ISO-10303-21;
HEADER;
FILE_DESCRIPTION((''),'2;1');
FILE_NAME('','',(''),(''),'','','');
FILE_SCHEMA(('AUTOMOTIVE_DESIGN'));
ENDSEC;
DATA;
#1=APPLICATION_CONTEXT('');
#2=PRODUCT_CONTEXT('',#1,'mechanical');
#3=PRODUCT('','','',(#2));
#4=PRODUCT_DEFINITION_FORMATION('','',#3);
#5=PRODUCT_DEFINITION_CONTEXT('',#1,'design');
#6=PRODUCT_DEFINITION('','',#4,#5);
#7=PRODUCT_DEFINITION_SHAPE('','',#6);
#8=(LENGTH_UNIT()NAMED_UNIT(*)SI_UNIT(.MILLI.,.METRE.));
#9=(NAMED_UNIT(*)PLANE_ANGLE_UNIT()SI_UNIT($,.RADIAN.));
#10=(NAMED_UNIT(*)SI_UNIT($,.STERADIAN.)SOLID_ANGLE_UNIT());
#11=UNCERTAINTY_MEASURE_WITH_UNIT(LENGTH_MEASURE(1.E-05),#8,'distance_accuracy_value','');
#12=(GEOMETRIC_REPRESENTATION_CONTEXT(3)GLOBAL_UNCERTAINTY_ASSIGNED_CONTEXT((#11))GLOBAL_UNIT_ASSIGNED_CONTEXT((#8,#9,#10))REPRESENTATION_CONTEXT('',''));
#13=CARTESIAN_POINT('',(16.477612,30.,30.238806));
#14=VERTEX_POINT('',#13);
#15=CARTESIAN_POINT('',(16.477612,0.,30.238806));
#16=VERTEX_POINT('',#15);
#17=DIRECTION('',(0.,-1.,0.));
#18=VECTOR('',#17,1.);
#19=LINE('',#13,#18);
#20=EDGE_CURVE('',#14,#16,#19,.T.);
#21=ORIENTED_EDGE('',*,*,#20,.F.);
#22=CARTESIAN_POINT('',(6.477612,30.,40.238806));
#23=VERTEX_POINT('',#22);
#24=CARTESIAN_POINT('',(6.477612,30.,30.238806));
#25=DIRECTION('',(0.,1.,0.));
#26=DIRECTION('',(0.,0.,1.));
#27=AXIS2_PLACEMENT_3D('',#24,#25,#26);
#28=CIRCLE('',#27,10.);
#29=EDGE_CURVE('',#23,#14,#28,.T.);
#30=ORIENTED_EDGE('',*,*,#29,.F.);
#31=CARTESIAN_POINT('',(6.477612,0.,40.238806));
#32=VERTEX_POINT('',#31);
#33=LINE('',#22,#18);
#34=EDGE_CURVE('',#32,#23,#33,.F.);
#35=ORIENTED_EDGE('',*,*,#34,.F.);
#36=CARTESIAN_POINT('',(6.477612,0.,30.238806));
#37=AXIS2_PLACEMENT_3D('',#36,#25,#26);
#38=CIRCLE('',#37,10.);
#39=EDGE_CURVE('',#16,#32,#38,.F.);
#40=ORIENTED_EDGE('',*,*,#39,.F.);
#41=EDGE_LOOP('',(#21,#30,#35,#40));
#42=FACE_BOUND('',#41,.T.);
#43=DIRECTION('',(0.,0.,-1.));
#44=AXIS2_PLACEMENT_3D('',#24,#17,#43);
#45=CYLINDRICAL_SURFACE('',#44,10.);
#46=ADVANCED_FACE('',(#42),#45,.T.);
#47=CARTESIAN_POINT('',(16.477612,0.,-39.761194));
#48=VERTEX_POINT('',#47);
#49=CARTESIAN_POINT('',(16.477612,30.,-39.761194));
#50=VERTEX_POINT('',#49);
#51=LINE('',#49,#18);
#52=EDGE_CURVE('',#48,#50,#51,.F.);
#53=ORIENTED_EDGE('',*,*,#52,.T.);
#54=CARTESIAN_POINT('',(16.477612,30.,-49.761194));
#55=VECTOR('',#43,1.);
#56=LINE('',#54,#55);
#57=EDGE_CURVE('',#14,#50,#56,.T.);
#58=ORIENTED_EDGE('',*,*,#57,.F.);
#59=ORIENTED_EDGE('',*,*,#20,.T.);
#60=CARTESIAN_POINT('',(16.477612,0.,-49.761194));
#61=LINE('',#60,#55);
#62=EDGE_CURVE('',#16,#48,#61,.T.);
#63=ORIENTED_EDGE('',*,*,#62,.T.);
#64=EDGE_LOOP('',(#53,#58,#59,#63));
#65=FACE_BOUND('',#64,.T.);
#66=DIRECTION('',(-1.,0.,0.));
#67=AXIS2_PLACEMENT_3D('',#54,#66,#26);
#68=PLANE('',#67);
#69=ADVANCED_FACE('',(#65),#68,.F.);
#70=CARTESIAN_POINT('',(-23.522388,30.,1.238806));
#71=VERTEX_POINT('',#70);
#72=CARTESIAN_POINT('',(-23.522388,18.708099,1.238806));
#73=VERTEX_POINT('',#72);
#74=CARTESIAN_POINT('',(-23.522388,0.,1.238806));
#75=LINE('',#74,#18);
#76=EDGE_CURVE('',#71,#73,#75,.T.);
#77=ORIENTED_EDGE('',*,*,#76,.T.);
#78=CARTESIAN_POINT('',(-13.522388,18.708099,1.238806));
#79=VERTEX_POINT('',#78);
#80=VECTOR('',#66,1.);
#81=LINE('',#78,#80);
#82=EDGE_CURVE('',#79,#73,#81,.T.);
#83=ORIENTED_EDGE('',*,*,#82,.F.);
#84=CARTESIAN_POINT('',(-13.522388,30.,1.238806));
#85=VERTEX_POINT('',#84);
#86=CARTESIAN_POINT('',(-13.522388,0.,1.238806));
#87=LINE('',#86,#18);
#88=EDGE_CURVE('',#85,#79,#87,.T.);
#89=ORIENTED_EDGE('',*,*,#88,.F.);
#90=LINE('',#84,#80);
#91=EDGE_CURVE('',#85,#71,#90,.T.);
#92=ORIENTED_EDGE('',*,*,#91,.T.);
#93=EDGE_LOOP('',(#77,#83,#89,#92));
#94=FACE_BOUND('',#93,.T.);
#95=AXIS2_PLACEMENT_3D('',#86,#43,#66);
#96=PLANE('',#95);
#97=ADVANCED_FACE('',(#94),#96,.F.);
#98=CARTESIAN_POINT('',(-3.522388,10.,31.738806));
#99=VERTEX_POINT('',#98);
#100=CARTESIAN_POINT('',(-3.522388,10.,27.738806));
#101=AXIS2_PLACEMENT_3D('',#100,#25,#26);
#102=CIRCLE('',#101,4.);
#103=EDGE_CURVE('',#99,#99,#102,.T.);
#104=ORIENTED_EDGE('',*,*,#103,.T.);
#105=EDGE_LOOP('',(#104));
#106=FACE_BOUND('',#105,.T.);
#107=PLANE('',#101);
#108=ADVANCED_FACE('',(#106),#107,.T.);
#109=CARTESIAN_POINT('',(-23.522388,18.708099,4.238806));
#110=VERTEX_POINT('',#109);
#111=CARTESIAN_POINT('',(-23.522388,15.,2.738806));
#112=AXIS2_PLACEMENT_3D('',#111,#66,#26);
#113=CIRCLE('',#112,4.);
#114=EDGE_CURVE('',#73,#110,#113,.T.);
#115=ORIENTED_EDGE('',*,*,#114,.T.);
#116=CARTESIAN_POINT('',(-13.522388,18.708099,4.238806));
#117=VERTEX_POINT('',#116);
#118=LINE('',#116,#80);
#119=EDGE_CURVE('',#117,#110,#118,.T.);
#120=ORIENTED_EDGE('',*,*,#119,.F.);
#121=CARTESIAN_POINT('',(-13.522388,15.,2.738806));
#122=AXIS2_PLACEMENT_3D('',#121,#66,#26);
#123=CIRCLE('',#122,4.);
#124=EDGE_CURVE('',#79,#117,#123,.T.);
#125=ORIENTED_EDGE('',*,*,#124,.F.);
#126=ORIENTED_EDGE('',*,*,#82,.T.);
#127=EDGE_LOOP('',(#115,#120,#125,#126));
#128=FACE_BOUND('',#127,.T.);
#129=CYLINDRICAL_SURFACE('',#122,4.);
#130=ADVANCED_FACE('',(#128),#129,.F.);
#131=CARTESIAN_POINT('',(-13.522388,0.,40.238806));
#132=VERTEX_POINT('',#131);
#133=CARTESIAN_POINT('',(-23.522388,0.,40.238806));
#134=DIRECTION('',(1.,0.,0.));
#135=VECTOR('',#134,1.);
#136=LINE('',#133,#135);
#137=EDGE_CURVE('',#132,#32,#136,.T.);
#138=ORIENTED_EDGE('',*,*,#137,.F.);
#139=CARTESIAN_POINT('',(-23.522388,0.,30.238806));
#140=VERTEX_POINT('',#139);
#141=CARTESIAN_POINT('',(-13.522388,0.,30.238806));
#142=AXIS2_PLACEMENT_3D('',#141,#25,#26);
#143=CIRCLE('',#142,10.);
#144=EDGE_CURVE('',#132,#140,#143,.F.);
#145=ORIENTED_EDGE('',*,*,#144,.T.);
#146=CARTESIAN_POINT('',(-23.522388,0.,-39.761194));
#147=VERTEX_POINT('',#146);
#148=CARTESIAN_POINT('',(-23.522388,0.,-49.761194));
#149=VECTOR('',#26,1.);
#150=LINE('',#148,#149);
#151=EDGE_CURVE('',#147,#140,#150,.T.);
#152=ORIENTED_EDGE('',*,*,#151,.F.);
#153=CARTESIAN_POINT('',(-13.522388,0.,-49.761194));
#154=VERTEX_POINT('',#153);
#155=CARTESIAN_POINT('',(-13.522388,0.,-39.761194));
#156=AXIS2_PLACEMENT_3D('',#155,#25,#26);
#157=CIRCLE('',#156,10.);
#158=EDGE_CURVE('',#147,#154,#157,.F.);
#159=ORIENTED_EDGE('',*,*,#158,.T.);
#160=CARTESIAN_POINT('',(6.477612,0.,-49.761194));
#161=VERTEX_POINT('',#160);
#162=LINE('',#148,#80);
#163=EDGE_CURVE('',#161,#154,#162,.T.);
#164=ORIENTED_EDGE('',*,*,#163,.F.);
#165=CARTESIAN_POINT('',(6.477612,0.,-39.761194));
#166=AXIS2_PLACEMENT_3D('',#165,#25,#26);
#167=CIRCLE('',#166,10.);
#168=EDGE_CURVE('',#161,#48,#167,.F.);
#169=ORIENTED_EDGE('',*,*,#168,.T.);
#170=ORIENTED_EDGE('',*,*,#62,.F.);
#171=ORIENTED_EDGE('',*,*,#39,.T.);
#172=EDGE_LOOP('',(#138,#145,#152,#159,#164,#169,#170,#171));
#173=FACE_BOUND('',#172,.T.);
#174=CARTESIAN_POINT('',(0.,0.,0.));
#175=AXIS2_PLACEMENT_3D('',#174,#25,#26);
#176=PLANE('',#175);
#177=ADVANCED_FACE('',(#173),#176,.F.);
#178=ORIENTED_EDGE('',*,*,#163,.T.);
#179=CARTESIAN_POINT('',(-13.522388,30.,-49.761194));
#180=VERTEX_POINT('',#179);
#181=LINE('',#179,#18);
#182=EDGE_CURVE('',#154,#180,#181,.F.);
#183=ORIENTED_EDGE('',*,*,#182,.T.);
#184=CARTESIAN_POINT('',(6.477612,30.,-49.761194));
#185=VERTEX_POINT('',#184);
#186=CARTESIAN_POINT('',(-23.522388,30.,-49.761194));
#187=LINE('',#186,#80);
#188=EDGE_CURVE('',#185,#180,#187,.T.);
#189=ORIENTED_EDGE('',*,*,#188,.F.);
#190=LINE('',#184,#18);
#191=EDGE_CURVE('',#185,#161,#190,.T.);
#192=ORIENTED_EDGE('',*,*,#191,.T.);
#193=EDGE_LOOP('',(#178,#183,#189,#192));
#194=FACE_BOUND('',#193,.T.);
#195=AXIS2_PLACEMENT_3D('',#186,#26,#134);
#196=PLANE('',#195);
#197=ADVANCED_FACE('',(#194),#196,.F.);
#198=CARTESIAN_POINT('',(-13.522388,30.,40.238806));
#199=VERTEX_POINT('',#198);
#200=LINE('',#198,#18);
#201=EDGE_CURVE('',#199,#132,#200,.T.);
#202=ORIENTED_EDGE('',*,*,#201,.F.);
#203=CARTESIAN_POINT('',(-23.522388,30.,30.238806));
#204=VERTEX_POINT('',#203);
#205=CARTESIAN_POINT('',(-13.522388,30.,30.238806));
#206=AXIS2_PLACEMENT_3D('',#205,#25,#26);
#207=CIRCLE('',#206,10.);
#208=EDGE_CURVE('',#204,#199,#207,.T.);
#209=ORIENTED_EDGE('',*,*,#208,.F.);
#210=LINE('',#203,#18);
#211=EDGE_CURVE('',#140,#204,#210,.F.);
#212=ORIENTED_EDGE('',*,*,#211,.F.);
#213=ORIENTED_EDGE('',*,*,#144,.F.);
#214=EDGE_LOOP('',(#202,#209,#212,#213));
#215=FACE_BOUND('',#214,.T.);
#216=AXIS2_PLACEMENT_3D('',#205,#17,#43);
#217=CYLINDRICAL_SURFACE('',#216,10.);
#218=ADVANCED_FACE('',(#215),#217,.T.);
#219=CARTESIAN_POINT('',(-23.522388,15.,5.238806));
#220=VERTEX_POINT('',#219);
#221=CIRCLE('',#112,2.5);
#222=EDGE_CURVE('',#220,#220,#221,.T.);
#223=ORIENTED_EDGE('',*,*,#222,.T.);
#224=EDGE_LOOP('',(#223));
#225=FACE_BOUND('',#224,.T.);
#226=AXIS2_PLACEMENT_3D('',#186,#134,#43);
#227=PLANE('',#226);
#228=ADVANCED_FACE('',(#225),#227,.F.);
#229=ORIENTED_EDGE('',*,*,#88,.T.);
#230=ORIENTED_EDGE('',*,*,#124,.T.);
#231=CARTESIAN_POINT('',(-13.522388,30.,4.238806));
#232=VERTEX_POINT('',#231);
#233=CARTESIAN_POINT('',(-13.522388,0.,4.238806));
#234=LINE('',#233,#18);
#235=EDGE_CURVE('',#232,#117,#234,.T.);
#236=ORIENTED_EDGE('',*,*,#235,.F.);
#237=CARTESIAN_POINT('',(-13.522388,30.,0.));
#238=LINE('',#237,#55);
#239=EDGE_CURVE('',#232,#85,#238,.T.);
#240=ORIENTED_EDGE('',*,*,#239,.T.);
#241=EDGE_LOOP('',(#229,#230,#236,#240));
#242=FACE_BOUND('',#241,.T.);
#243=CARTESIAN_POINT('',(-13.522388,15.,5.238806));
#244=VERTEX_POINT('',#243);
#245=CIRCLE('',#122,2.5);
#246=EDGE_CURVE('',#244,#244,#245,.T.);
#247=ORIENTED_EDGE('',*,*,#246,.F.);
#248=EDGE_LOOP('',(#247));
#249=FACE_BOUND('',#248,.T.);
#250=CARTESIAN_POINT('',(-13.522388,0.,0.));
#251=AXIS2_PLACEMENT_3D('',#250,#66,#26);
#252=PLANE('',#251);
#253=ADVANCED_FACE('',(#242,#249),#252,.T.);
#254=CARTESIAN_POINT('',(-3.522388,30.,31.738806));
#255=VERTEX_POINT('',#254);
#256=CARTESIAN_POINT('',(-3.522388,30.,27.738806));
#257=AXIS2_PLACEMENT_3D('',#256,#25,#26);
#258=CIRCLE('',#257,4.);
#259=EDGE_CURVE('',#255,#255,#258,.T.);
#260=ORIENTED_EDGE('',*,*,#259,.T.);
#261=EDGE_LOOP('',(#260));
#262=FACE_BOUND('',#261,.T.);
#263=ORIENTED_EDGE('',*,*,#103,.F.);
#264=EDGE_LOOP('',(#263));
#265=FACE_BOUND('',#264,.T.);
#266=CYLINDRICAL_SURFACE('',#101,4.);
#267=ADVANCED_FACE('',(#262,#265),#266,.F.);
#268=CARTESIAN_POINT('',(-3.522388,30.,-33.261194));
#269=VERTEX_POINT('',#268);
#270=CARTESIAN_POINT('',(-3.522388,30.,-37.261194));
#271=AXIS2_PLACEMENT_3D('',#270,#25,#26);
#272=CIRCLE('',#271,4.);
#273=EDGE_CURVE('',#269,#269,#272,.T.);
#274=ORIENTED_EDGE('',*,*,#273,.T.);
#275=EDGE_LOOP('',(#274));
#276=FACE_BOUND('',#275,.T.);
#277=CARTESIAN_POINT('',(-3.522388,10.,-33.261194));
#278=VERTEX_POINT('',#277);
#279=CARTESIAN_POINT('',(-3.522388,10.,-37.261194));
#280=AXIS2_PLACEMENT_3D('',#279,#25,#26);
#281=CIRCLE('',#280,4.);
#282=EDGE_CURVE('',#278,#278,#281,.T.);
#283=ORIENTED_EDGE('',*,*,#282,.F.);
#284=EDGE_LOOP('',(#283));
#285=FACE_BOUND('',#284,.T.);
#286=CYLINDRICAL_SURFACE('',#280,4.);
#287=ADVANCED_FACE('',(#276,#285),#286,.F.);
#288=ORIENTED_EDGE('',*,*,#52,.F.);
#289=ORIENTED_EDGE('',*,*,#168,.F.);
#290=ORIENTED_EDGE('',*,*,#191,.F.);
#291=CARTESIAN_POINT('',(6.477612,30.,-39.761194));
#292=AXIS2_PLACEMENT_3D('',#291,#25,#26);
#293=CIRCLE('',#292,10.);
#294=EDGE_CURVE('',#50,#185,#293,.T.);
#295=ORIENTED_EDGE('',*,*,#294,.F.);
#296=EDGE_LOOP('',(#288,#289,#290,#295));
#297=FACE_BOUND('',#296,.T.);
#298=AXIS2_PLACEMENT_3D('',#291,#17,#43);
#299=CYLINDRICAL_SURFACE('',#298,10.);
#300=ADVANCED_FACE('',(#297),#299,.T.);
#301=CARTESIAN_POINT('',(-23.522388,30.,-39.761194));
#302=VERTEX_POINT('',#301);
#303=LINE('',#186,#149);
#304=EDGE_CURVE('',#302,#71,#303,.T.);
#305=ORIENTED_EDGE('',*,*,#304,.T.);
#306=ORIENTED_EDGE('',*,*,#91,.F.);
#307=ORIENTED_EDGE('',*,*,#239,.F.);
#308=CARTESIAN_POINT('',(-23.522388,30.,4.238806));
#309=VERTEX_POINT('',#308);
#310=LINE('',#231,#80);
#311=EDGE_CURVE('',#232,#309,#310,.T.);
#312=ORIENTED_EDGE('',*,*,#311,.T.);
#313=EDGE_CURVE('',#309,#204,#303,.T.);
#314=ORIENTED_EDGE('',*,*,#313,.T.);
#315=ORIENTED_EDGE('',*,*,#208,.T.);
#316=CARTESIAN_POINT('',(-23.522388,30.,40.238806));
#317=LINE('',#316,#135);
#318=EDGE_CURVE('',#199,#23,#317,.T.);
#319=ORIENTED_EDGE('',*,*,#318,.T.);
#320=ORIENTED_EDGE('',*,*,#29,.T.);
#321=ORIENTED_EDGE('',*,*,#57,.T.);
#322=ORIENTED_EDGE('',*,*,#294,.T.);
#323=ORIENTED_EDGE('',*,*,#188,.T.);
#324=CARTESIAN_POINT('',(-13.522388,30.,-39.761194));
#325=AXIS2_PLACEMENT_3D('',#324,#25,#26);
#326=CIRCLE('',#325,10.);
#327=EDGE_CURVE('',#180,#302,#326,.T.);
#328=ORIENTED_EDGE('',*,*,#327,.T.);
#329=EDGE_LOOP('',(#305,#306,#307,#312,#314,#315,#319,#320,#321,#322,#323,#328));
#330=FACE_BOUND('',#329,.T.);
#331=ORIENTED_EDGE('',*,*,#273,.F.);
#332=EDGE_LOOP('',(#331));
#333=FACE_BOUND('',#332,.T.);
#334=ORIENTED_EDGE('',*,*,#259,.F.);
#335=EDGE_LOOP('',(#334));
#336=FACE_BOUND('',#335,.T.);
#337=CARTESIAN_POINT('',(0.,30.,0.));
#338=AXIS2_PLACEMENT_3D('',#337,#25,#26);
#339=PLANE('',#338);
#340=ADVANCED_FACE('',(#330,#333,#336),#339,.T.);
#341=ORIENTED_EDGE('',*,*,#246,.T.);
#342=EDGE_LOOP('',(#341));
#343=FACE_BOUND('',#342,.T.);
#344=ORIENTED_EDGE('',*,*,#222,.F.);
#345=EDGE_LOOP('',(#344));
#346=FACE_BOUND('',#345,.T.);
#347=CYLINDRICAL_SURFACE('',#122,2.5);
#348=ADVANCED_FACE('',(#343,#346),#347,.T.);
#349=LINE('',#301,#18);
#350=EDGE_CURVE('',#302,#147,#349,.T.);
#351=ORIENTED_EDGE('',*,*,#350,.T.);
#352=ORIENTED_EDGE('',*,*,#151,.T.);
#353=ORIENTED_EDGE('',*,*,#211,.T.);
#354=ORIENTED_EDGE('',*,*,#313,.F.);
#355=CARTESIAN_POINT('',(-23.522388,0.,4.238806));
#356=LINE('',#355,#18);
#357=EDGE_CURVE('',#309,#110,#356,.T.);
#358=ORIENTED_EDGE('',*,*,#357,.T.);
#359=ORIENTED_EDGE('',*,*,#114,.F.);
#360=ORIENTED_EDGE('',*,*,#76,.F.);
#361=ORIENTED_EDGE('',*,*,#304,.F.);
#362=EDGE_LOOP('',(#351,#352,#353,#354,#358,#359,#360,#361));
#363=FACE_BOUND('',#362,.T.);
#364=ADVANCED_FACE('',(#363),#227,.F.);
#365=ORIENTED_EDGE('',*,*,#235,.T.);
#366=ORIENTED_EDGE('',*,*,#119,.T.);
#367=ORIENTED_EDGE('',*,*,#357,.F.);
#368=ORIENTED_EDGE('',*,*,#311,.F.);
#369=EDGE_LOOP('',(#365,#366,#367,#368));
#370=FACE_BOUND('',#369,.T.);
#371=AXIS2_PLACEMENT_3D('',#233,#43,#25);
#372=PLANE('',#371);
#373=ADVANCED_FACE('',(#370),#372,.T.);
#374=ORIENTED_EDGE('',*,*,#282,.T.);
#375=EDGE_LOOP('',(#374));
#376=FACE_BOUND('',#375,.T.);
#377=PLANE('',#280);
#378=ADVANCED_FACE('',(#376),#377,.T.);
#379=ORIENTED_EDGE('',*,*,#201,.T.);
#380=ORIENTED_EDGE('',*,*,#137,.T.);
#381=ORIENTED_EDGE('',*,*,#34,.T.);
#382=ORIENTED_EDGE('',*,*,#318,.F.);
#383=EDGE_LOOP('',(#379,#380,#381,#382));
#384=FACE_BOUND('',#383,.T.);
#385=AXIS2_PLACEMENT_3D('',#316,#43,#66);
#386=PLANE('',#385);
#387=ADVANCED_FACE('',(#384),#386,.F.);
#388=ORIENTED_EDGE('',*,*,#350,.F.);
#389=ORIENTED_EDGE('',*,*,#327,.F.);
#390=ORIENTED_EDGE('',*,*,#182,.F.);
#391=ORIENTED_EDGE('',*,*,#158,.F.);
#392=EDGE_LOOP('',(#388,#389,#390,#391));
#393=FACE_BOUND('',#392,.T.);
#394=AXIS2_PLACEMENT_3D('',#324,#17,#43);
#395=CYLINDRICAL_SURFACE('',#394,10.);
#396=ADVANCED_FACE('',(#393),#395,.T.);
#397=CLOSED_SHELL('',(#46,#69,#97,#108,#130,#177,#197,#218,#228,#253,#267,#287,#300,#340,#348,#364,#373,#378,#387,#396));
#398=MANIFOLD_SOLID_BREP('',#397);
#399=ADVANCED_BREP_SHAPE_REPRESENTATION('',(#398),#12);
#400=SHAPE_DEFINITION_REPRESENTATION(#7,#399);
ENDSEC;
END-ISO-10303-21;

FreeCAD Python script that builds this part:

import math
import FreeCAD as App
import Part
import Sketcher
from FreeCAD import Vector
Q = App.Units.Quantity


def edges_at(feature, points):
    """Names of the edges that pass closest to the given points."""
    edges = feature.Shape.Edges
    near = lambda p: min(range(len(edges)), key=lambda i: edges[i].distToShape(Part.Vertex(*p))[0])
    return sorted({f"Edge{near(p) + 1}" for p in points})

doc = App.newDocument("Part")
body = doc.addObject("PartDesign::Body", "Body")

sketch1 = doc.addObject("Sketcher::SketchObject", "Sketch")
body.addObject(sketch1)
sketch1.AttachmentSupport = (doc.XZ_Plane, [""])
sketch1.MapMode = "FlatFace"
sketch1.addGeometry([
    Part.LineSegment(Vector(-24, -50, 0), Vector(-24, 40, 0)),
    Part.LineSegment(Vector(-24, 40, 0), Vector(16, 40, 0)),
    Part.LineSegment(Vector(16, 40, 0), Vector(16, -50, 0)),
    Part.LineSegment(Vector(16, -50, 0), Vector(-24, -50, 0)),
], False)
sketch1.addConstraint([
    Sketcher.Constraint("Coincident", 0, 2, 1, 1),
    Sketcher.Constraint("Coincident", 1, 2, 2, 1),
    Sketcher.Constraint("Coincident", 2, 2, 3, 1),
    Sketcher.Constraint("Coincident", 3, 2, 0, 1),
    Sketcher.Constraint("Vertical", 0),
    Sketcher.Constraint("Horizontal", 1),
    Sketcher.Constraint("Vertical", 2),
    Sketcher.Constraint("Horizontal", 3),
    Sketcher.Constraint("DistanceX", 1, 1, 1, 2, Q("40 mm")),
    Sketcher.Constraint("DistanceY", 0, 1, 0, 2, Q("90 mm")),
    Sketcher.Constraint("DistanceX", 0, 2, -1, 1, Q("23.522388 mm")),
    Sketcher.Constraint("DistanceY", -1, 1, 0, 2, Q("40.238806 mm")),
])
pad1 = doc.addObject("PartDesign::Pad", "Pad")
body.addObject(pad1)
pad1.Profile = sketch1
pad1.Length = 30
pad1.Reversed = True

sketch2 = doc.addObject("Sketcher::SketchObject", "Sketch001")
body.addObject(sketch2)
sketch2.AttachmentSupport = (doc.XZ_Plane, [""])
sketch2.MapMode = "FlatFace"
sketch2.AttachmentOffset = App.Placement(Vector(0, 0, -30), App.Rotation())
sketch2.addGeometry([
    Part.Circle(Vector(-3.5, -37.3, 0), Vector(0, 0, 1), 4),
    Part.Circle(Vector(-3.5, 27.7, 0), Vector(0, 0, 1), 4),
], False)
sketch2.addConstraint([
    Sketcher.Constraint("Equal", 0, 1),
    Sketcher.Constraint("Vertical", 0, 3, 1, 3),
    Sketcher.Constraint("Diameter", 0, Q("8 mm")),
    Sketcher.Constraint("DistanceY", 0, 3, 1, 3, Q("65 mm")),
    Sketcher.Constraint("DistanceX", 0, 3, -1, 1, Q("3.522388 mm")),
    Sketcher.Constraint("DistanceY", 0, 3, -1, 1, Q("37.261194 mm")),
])
pocket1 = doc.addObject("PartDesign::Pocket", "Pocket")
body.addObject(pocket1)
pocket1.Profile = sketch2
pocket1.Length = 20
pocket1.Reversed = True

sketch3 = doc.addObject("Sketcher::SketchObject", "Sketch002")
body.addObject(sketch3)
sketch3.AttachmentSupport = (doc.YZ_Plane, [""])
sketch3.MapMode = "FlatFace"
sketch3.AttachmentOffset = App.Placement(Vector(0, 0, -23.522388), App.Rotation())
sketch3.addGeometry([
    Part.ArcOfCircle(Part.Circle(Vector(15, 2.7, 0), Vector(0, 0, 1), 4), math.radians(22), math.radians(338)),
    Part.LineSegment(Vector(18.7, 4.2, 0), Vector(30, 4.2, 0)),
    Part.LineSegment(Vector(30, 4.2, 0), Vector(30, 1.2, 0)),
    Part.LineSegment(Vector(30, 1.2, 0), Vector(18.7, 1.2, 0)),
    Part.Circle(Vector(15, 2.7, 0), Vector(0, 0, 1), 2.5),
], False)
sketch3.addConstraint([
    Sketcher.Constraint("Coincident", 0, 1, 1, 1),
    Sketcher.Constraint("Coincident", 1, 2, 2, 1),
    Sketcher.Constraint("Coincident", 2, 2, 3, 1),
    Sketcher.Constraint("Coincident", 3, 2, 0, 2),
    Sketcher.Constraint("Horizontal", 1),
    Sketcher.Constraint("Vertical", 2),
    Sketcher.Constraint("Horizontal", 3),
    Sketcher.Constraint("Coincident", 4, 3, 0, 3),
    Sketcher.Constraint("Vertical", 0, 1, 3, 2),
    Sketcher.Constraint("Diameter", 4, Q("5 mm")),
    Sketcher.Constraint("Radius", 0, Q("4 mm")),
    Sketcher.Constraint("DistanceY", 2, 2, 2, 1, Q("3 mm")),
    Sketcher.Constraint("DistanceX", -1, 1, 0, 3, Q("15 mm")),
    Sketcher.Constraint("DistanceX", -1, 1, 1, 2, Q("30 mm")),
    Sketcher.Constraint("DistanceY", -1, 1, 0, 3, Q("2.738806 mm")),
])
pocket2 = doc.addObject("PartDesign::Pocket", "Pocket001")
body.addObject(pocket2)
pocket2.Profile = sketch3
pocket2.Length = 10
pocket2.Reversed = True
doc.recompute()

fillet = doc.addObject("PartDesign::Fillet", "Fillet")
body.addObject(fillet)
fillet.Base = (pocket2, edges_at(pocket2, [
    (-23.522, 15, -49.761),
    (16.478, 15, -49.761),
    (16.478, 15, 40.239),
    (-23.522, 15, 40.239),
]))
fillet.Radius = 10

doc.recompute()
